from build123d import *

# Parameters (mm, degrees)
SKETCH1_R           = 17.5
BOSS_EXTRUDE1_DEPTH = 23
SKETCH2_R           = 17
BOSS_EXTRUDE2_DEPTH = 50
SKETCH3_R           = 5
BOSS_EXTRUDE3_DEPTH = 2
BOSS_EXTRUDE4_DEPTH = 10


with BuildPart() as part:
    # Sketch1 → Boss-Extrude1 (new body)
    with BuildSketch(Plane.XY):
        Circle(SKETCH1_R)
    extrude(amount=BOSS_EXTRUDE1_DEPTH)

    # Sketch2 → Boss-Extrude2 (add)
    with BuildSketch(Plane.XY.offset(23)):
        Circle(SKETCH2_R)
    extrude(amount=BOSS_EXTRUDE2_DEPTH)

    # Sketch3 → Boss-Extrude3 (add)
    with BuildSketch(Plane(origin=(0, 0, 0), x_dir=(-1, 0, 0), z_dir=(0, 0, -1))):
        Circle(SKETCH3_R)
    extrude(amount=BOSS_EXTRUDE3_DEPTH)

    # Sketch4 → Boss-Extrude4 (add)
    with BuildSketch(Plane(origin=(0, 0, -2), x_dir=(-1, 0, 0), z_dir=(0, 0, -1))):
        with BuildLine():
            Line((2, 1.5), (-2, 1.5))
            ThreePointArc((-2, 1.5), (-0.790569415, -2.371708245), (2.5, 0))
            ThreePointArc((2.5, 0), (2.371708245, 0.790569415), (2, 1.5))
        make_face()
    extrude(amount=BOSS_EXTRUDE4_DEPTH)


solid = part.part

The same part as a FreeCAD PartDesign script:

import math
import FreeCAD as App
import Part
import Sketcher

V = App.Vector
Q = App.Units.Quantity

doc = App.newDocument("Part")
body = doc.addObject("PartDesign::Body", "Body")

sketch1 = body.newObject("Sketcher::SketchObject", "Sketch")
sketch1.AttachmentSupport = (doc.getObject("XY_Plane"), [""])
sketch1.MapMode = "FlatFace"
sketch1.addGeometry(Part.Circle(V(0, 0, 0), V(0, 0, 1), 18), False)
sketch1.addConstraint([
    Sketcher.Constraint("Coincident", 0, 3, -1, 1),
    Sketcher.Constraint("Diameter", 0, Q("35 mm")),
])
pad1 = body.newObject("PartDesign::Pad", "Pad")
pad1.Profile = sketch1
pad1.Length = 23

sketch2 = body.newObject("Sketcher::SketchObject", "Sketch001")
sketch2.AttachmentSupport = (doc.getObject("XY_Plane"), [""])
sketch2.MapMode = "FlatFace"
sketch2.AttachmentOffset = App.Placement(V(0, 0, 23), App.Rotation())
sketch2.addGeometry(Part.Circle(V(0, 0, 0), V(0, 0, 1), 17), False)
sketch2.addConstraint([
    Sketcher.Constraint("Coincident", 0, 3, -1, 1),
    Sketcher.Constraint("Diameter", 0, Q("34 mm")),
])
pad2 = body.newObject("PartDesign::Pad", "Pad001")
pad2.Profile = sketch2
pad2.Length = 50

sketch3 = body.newObject("Sketcher::SketchObject", "Sketch002")
sketch3.AttachmentSupport = (doc.getObject("XY_Plane"), [""])
sketch3.MapMode = "FlatFace"
sketch3.addGeometry(Part.Circle(V(0, 0, 0), V(0, 0, 1), 5), False)
sketch3.addConstraint([
    Sketcher.Constraint("Coincident", 0, 3, -1, 1),
    Sketcher.Constraint("Diameter", 0, Q("10 mm")),
])
pad3 = body.newObject("PartDesign::Pad", "Pad002")
pad3.Profile = sketch3
pad3.Length = 2
pad3.Reversed = True

sketch4 = body.newObject("Sketcher::SketchObject", "Sketch003")
sketch4.AttachmentSupport = (doc.getObject("XY_Plane"), [""])
sketch4.MapMode = "FlatFace"
sketch4.AttachmentOffset = App.Placement(V(0, 0, -2), App.Rotation())
sketch4.addGeometry([
    Part.LineSegment(V(-2, 1.5, 0), V(2, 1.5, 0)),
    Part.ArcOfCircle(Part.Circle(V(0, 0, 0), V(0, 0, 1), 2.5), math.radians(180), math.radians(397)),
    Part.ArcOfCircle(Part.Circle(V(0, 0, 0), V(0, 0, 1), 2.5), math.radians(143), math.radians(180)),
], False)
sketch4.addConstraint([
    Sketcher.Constraint("Coincident", 0, 2, 1, 2),
    Sketcher.Constraint("Tangent", 1, 1, 2, 2),
    Sketcher.Constraint("Coincident", 2, 1, 0, 1),
    Sketcher.Constraint("Horizontal", 0),
    Sketcher.Constraint("Coincident", 1, 3, -1, 1),
    Sketcher.Constraint("Equal", 1, 2),
    Sketcher.Constraint("PointOnObject", 1, 1, -1),
    Sketcher.Constraint("Radius", 1, Q("2.5 mm")),
    Sketcher.Constraint("DistanceX", 0, 1, 0, 2, Q("4 mm")),
])
pad4 = body.newObject("PartDesign::Pad", "Pad003")
pad4.Profile = sketch4
pad4.Length = 10
pad4.Reversed = True

doc.recompute()
